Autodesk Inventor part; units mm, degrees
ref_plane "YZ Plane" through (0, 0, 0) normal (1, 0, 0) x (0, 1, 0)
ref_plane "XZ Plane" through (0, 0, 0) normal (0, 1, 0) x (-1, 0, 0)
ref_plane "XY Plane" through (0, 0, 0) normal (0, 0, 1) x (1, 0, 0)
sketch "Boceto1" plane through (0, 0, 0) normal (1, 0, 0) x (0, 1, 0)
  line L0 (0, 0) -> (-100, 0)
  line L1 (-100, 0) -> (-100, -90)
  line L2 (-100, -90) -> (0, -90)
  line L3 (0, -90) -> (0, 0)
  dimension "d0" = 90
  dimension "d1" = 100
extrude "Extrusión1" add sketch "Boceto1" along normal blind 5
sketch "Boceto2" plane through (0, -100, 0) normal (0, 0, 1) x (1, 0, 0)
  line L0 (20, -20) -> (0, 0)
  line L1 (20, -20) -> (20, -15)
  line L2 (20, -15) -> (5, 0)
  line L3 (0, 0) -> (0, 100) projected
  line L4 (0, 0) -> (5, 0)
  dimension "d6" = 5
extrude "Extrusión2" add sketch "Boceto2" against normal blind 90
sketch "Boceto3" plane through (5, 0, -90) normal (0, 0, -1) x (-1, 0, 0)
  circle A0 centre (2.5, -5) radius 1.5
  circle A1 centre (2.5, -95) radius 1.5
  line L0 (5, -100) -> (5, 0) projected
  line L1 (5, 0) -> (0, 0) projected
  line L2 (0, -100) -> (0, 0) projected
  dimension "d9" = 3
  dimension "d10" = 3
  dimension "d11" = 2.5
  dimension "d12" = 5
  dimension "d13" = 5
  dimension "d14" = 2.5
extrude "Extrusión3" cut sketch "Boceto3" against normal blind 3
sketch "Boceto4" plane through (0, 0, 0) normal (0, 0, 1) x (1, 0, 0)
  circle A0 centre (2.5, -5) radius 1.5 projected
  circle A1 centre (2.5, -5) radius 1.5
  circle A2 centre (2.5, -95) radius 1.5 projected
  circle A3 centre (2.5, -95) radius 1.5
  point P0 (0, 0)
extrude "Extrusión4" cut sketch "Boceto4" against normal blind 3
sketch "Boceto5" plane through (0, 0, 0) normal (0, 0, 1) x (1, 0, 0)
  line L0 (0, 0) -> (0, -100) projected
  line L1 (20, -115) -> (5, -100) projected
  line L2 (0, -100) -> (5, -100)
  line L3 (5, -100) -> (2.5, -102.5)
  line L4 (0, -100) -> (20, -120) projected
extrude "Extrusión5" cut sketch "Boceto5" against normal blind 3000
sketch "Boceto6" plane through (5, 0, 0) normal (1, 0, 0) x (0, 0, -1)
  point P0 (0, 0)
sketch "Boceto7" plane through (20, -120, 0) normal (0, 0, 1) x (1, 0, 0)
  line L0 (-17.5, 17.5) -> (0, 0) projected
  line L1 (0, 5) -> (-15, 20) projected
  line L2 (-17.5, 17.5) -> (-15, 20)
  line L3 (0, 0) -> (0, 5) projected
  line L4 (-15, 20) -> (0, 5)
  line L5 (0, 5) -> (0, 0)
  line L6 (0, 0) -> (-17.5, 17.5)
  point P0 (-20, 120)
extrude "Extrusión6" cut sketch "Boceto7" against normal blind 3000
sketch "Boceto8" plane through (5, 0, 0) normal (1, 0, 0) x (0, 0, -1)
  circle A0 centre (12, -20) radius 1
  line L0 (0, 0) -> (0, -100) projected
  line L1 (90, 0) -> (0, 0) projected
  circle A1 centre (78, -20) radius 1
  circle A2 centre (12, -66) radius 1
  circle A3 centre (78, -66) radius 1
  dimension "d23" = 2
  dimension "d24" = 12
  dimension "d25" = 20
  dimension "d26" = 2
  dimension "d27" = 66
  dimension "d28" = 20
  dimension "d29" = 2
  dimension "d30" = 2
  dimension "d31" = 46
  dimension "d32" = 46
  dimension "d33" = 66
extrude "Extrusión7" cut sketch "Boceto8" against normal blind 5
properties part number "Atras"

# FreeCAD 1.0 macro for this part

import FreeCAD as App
import Part
import Sketcher
Q = App.Units.Quantity

doc = App.newDocument("Part")
params = doc.addObject("Spreadsheet::Sheet", "Params")
for row, (alias, value) in enumerate([
    ("sketch1_width", "100 mm"),
    ("sketch1_height", "90 mm"),
    ("pad1_length", "5 mm"),
    ("sketch2_width", "5 mm"),
    ("pad2_length", "90 mm"),
    ("sketch3_diameter", "3 mm"),
    ("pocket1_length", "3 mm"),
    ("sketch4_diameter", "3 mm"),
    ("pocket2_length", "3 mm"),
    ("sketch5_width", "5 mm"),
    ("pocket3_length", "3000 mm"),
    ("sketch6_height", "5 mm"),
    ("pocket4_length", "3000 mm"),
    ("sketch7_diameter", "2 mm"),
    ("pocket5_length", "5 mm"),
], start=1):
    params.set(f"A{row}", alias)
    params.set(f"B{row}", "=" + value)
    params.setAlias(f"B{row}", alias)

body = doc.addObject("PartDesign::Body", "Body")
body.AllowCompound = True

# Sketch on YZ plane
sketch1 = body.newObject("Sketcher::SketchObject", "Sketch")
sketch1.AttachmentSupport = (doc.getObject("YZ_Plane"), [""])
sketch1.MapMode = "FlatFace"
sketch1.addGeometry([
    Part.LineSegment(App.Vector(0, -90, 0), App.Vector(0, 0, 0)),
    Part.LineSegment(App.Vector(0, 0, 0), App.Vector(-100, 0, 0)),
    Part.LineSegment(App.Vector(-100, 0, 0), App.Vector(-100, -90, 0)),
    Part.LineSegment(App.Vector(-100, -90, 0), App.Vector(0, -90, 0)),
], False)
sketch1.addConstraint([
    Sketcher.Constraint("Coincident", 0, 2, 1, 1),
    Sketcher.Constraint("Coincident", 1, 2, 2, 1),
    Sketcher.Constraint("Coincident", 2, 2, 3, 1),
    Sketcher.Constraint("Coincident", 3, 2, 0, 1),
    Sketcher.Constraint("Vertical", 0),
    Sketcher.Constraint("Horizontal", 1),
    Sketcher.Constraint("Vertical", 2),
    Sketcher.Constraint("Horizontal", 3),
    Sketcher.Constraint("Coincident", 0, 2, -1, 1),
    Sketcher.Constraint("DistanceX", 1, 2, 1, 1, 100.0),
    Sketcher.Constraint("DistanceY", 0, 1, 0, 2, 90.0),
])
sketch1.setExpression("Constraints[9]", "Params.sketch1_width")
sketch1.setExpression("Constraints[10]", "Params.sketch1_height")
pad1 = body.newObject("PartDesign::Pad", "Pad")
pad1.Profile = sketch1
pad1.setExpression("Length", "Params.pad1_length")

# Sketch on XY plane
sketch2 = body.newObject("Sketcher::SketchObject", "Sketch001")
sketch2.AttachmentSupport = (doc.getObject("XY_Plane"), [""])
sketch2.MapMode = "FlatFace"
sketch2.addGeometry([
    Part.LineSegment(App.Vector(0, -100, 0), App.Vector(20, -120, 0)),
    Part.LineSegment(App.Vector(20, -120, 0), App.Vector(20, -115, 0)),
    Part.LineSegment(App.Vector(20, -115, 0), App.Vector(5, -100, 0)),
    Part.LineSegment(App.Vector(5, -100, 0), App.Vector(0, -100, 0)),
], False)
sketch2.addConstraint([
    Sketcher.Constraint("Coincident", 0, 2, 1, 1),
    Sketcher.Constraint("Coincident", 1, 2, 2, 1),
    Sketcher.Constraint("Coincident", 2, 2, 3, 1),
    Sketcher.Constraint("Coincident", 3, 2, 0, 1),
    Sketcher.Constraint("Vertical", 1),
    Sketcher.Constraint("Horizontal", 3),
    Sketcher.Constraint("PointOnObject", 3, 2, -2),
    Sketcher.Constraint("Parallel", 0, 2),
    Sketcher.Constraint("Equal", 3, 1),
    Sketcher.Constraint("DistanceX", 3, 2, 3, 1, 5.0),
    Sketcher.Constraint("DistanceX", -1, 1, 0, 2, 20.0),
    Sketcher.Constraint("DistanceY", 0, 2, -1, 1, 120.0),
])
sketch2.setExpression("Constraints[9]", "Params.sketch2_width")
pad2 = body.newObject("PartDesign::Pad", "Pad001")
pad2.Profile = sketch2
pad2.setExpression("Length", "Params.pad2_length")
pad2.Reversed = True

# Sketch on XY plane
sketch3 = body.newObject("Sketcher::SketchObject", "Sketch002")
sketch3.AttachmentSupport = (doc.getObject("XY_Plane"), [""])
sketch3.MapMode = "FlatFace"
sketch3.AttachmentOffset = App.Placement(App.Vector(0, 0, -90), App.Rotation())
sketch3.addGeometry([
    Part.Circle(App.Vector(2.5, -5, 0), App.Vector(0, 0, 1), 1.5),
    Part.Circle(App.Vector(2.5, -95, 0), App.Vector(0, 0, 1), 1.5),
], False)
sketch3.addConstraint([
    Sketcher.Constraint("Equal", 0, 1),
    Sketcher.Constraint("Vertical", 0, 3, 1, 3),
    Sketcher.Constraint("Diameter", 0, 3.0),
    Sketcher.Constraint("DistanceY", 0, 3, -1, 1, 5.0),
    Sketcher.Constraint("DistanceX", -1, 1, 0, 3, 2.5),
    Sketcher.Constraint("DistanceY", 1, 3, -1, 1, 95.0),
])
sketch3.setExpression("Constraints[2]", "Params.sketch3_diameter")
pocket1 = body.newObject("PartDesign::Pocket", "Pocket")
pocket1.Profile = sketch3
pocket1.setExpression("Length", "Params.pocket1_length")
pocket1.Reversed = True

# Sketch on XY plane
sketch4 = body.newObject("Sketcher::SketchObject", "Sketch003")
sketch4.AttachmentSupport = (doc.getObject("XY_Plane"), [""])
sketch4.MapMode = "FlatFace"
sketch4.addGeometry([
    Part.Circle(App.Vector(2.5, -5, 0), App.Vector(0, 0, 1), 1.5),
    Part.Circle(App.Vector(2.5, -95, 0), App.Vector(0, 0, 1), 1.5),
], False)
sketch4.addConstraint([
    Sketcher.Constraint("Equal", 0, 1),
    Sketcher.Constraint("Vertical", 0, 3, 1, 3),
    Sketcher.Constraint("Diameter", 0, 3.0),
    Sketcher.Constraint("DistanceY", 0, 3, -1, 1, 5.0),
    Sketcher.Constraint("DistanceY", 1, 3, -1, 1, 95.0),
    Sketcher.Constraint("DistanceX", -1, 1, 0, 3, 2.5),
])
sketch4.setExpression("Constraints[2]", "Params.sketch4_diameter")
pocket2 = body.newObject("PartDesign::Pocket", "Pocket001")
pocket2.Profile = sketch4
pocket2.setExpression("Length", "Params.pocket2_length")

# Sketch on XY plane
sketch5 = body.newObject("Sketcher::SketchObject", "Sketch004")
sketch5.AttachmentSupport = (doc.getObject("XY_Plane"), [""])
sketch5.MapMode = "FlatFace"
sketch5.addGeometry([
    Part.LineSegment(App.Vector(5, -100, 0), App.Vector(0, -100, 0)),
    Part.LineSegment(App.Vector(0, -100, 0), App.Vector(2.5, -102.5, 0)),
    Part.LineSegment(App.Vector(2.5, -102.5, 0), App.Vector(5, -100, 0)),
], False)
sketch5.addConstraint([
    Sketcher.Constraint("Coincident", 0, 2, 1, 1),
    Sketcher.Constraint("Coincident", 1, 2, 2, 1),
    Sketcher.Constraint("Coincident", 2, 2, 0, 1),
    Sketcher.Constraint("Horizontal", 0),
    Sketcher.Constraint("PointOnObject", 0, 2, -2),
    Sketcher.Constraint("Perpendicular", 1, 2),
    Sketcher.Constraint("Equal", 1, 2),
    Sketcher.Constraint("DistanceX", 0, 2, 0, 1, 5.0),
    Sketcher.Constraint("DistanceY", 0, 2, -1, 1, 100.0),
])
sketch5.setExpression("Constraints[7]", "Params.sketch5_width")
pocket3 = body.newObject("PartDesign::Pocket", "Pocket002")
pocket3.Profile = sketch5
pocket3.setExpression("Length", "Params.pocket3_length")

# Sketch on XY plane
sketch6 = body.newObject("Sketcher::SketchObject", "Sketch005")
sketch6.AttachmentSupport = (doc.getObject("XY_Plane"), [""])
sketch6.MapMode = "FlatFace"
sketch6.addGeometry([
    Part.LineSegment(App.Vector(5, -100, 0), App.Vector(2.5, -102.5, 0)),
    Part.LineSegment(App.Vector(2.5, -102.5, 0), App.Vector(20, -120, 0)),
    Part.LineSegment(App.Vector(20, -120, 0), App.Vector(20, -115, 0)),
    Part.LineSegment(App.Vector(20, -115, 0), App.Vector(5, -100, 0)),
], False)
sketch6.addConstraint([
    Sketcher.Constraint("Coincident", 0, 2, 1, 1),
    Sketcher.Constraint("Coincident", 1, 2, 2, 1),
    Sketcher.Constraint("Coincident", 2, 2, 3, 1),
    Sketcher.Constraint("Coincident", 3, 2, 0, 1),
    Sketcher.Constraint("Vertical", 2),
    Sketcher.Constraint("Perpendicular", 0, 1),
    Sketcher.Constraint("Parallel", 1, 3),
    Sketcher.Constraint("DistanceY", 2, 1, 2, 2, 5.0),
    Sketcher.Constraint("Angle", 0, Q("-135 deg")),
    Sketcher.Constraint("DistanceX", -1, 1, 1, 2, 20.0),
    Sketcher.Constraint("DistanceY", 1, 2, -1, 1, 120.0),
    Sketcher.Constraint("DistanceX", -1, 1, 3, 2, 5.0),
])
sketch6.setExpression("Constraints[7]", "Params.sketch6_height")
pocket4 = body.newObject("PartDesign::Pocket", "Pocket003")
pocket4.Profile = sketch6
pocket4.setExpression("Length", "Params.pocket4_length")

# Sketch on YZ plane
sketch7 = body.newObject("Sketcher::SketchObject", "Sketch006")
sketch7.AttachmentSupport = (doc.getObject("YZ_Plane"), [""])
sketch7.MapMode = "FlatFace"
sketch7.AttachmentOffset = App.Placement(App.Vector(0, 0, 5), App.Rotation())
sketch7.addGeometry([
    Part.Circle(App.Vector(-20, -12, 0), App.Vector(0, 0, 1), 1),
    Part.Circle(App.Vector(-20, -78, 0), App.Vector(0, 0, 1), 1),
    Part.Circle(App.Vector(-66, -12, 0), App.Vector(0, 0, 1), 1),
    Part.Circle(App.Vector(-66, -78, 0), App.Vector(0, 0, 1), 1),
], False)
sketch7.addConstraint([
    Sketcher.Constraint("Equal", 0, 1),
    Sketcher.Constraint("Equal", 1, 2),
    Sketcher.Constraint("Equal", 2, 3),
    Sketcher.Constraint("Horizontal", 0, 3, 2, 3),
    Sketcher.Constraint("Horizontal", 1, 3, 3, 3),
    Sketcher.Constraint("Vertical", 0, 3, 1, 3),
    Sketcher.Constraint("Vertical", 2, 3, 3, 3),
    Sketcher.Constraint("Diameter", 0, 2.0),
    Sketcher.Constraint("DistanceX", 0, 3, -1, 1, 20.0),
    Sketcher.Constraint("DistanceY", 0, 3, -1, 1, 12.0),
    Sketcher.Constraint("DistanceX", 2, 3, -1, 1, 66.0),
    Sketcher.Constraint("DistanceY", 1, 3, 0, 3, 66.0),
])
sketch7.setExpression("Constraints[7]", "Params.sketch7_diameter")
pocket5 = body.newObject("PartDesign::Pocket", "Pocket004")
pocket5.Profile = sketch7
pocket5.setExpression("Length", "Params.pocket5_length")

doc.recompute()
